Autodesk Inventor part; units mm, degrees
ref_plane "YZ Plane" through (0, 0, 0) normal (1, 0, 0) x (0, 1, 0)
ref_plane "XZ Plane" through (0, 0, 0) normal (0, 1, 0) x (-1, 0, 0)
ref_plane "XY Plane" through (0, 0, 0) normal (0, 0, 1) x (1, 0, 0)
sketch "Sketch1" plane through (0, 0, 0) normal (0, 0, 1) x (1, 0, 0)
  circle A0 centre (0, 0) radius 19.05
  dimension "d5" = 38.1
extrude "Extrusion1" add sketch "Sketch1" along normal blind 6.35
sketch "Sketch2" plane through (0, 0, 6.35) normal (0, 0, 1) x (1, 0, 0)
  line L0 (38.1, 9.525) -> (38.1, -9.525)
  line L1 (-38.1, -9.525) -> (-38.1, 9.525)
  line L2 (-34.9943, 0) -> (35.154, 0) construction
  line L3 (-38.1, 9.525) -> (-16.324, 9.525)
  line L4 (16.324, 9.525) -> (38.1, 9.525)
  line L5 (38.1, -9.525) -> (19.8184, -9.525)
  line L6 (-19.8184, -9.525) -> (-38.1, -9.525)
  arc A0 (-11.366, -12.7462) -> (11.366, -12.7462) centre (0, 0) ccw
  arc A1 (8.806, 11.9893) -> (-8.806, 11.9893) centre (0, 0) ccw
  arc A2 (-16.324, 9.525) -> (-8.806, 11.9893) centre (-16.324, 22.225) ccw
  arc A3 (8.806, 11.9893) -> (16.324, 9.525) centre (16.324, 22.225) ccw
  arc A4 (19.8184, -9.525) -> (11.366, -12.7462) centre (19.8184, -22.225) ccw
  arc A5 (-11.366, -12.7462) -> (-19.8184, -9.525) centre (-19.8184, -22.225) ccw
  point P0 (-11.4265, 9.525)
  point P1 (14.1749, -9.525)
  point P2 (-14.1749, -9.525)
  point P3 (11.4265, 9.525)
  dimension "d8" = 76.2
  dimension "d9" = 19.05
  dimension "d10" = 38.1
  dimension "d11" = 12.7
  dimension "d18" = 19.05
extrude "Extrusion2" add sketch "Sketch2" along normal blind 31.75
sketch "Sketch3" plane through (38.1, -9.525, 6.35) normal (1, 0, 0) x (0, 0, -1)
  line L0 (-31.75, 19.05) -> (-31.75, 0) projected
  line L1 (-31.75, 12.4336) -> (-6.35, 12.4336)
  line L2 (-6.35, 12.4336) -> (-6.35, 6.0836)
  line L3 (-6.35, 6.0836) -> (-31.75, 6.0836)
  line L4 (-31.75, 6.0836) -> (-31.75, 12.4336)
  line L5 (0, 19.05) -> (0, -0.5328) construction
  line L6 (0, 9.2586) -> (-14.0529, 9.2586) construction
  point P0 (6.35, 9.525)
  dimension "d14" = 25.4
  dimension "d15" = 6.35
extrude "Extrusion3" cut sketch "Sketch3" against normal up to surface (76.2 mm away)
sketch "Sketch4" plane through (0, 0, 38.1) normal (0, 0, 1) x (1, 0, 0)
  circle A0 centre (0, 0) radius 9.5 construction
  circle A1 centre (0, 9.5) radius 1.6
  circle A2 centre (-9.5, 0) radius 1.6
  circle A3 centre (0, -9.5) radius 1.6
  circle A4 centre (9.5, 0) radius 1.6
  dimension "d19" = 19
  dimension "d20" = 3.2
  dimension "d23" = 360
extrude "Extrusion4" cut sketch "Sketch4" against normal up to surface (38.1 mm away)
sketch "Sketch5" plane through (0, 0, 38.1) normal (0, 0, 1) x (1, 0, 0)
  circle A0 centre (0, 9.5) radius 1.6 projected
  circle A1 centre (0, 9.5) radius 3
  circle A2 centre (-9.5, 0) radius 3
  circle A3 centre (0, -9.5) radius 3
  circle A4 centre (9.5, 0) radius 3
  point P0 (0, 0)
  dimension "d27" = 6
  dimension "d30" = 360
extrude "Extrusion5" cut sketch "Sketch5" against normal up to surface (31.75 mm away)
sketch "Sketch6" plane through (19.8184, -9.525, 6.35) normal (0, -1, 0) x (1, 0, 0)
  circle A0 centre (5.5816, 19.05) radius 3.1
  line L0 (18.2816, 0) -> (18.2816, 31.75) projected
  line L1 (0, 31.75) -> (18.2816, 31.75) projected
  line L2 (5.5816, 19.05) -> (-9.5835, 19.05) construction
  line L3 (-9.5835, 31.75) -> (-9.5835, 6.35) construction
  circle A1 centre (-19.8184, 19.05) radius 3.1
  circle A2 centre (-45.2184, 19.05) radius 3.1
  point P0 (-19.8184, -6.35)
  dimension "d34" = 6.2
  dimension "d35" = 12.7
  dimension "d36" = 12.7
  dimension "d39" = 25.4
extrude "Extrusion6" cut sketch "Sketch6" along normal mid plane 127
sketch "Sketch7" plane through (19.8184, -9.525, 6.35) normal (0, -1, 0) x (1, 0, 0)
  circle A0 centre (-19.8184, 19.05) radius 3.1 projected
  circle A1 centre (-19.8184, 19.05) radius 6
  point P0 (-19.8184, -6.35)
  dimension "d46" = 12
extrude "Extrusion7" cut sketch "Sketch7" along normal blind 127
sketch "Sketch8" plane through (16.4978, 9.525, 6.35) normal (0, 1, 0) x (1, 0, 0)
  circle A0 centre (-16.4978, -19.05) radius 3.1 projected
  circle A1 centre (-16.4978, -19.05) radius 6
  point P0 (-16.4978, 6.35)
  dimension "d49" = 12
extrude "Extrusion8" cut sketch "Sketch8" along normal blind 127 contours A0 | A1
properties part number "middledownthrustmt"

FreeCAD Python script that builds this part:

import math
import FreeCAD as App
import Part
import Sketcher

V = App.Vector
Q = App.Units.Quantity

doc = App.newDocument("Part")
params = doc.addObject("Spreadsheet::Sheet", "Params")
for row, (alias, value) in enumerate([
    ("sketch1_diameter", "1.5 in"),
    ("pad1_length", "0.25 in"),
    ("sketch2_radius", "0.5 in"),
    ("sketch2_height", "0.75 in"),
    ("pad2_length", "1.25 in"),
    ("sketch3_height", "1 in"),
    ("sketch3_width", "0.25 in"),
    ("pocket1_length", "3 in"),
    ("pocket2_length", "1.5 in"),
    ("pocket3_length", "1.25 in"),
    ("pocket4_length", "5 in"),
    ("pocket5_length", "5 in"),
    ("pocket6_length", "5 in"),
], start=1):
    params.set(f"A{row}", alias)
    params.set(f"B{row}", "=" + value)
    params.setAlias(f"B{row}", alias)

body = doc.addObject("PartDesign::Body", "Body")

# Sketch on XY plane
sketch1 = body.newObject("Sketcher::SketchObject", "Sketch")
sketch1.AttachmentSupport = (doc.getObject("XY_Plane"), [""])
sketch1.MapMode = "FlatFace"
sketch1.addGeometry(Part.Circle(V(0, 0, 0), V(0, 0, 1), 19), False)
sketch1.addConstraint(Sketcher.Constraint("Coincident", 0, 3, -1, 1))
sketch1.addConstraint(Sketcher.Constraint("Diameter", 0, Q("1.5 in")))
sketch1.setExpression("Constraints[1]", "Params.sketch1_diameter")
pad1 = body.newObject("PartDesign::Pad", "Pad")
pad1.Profile = sketch1
pad1.setExpression("Length", "Params.pad1_length")

# Sketch on XY plane
sketch2 = body.newObject("Sketcher::SketchObject", "Sketch001")
sketch2.AttachmentSupport = (doc.getObject("XY_Plane"), [""])
sketch2.MapMode = "FlatFace"
sketch2.AttachmentOffset = App.Placement(V(0, 0, 0.25 * 25.4), App.Rotation())
sketch2.addGeometry(Part.LineSegment(V(38, -10, 0), V(38, 10, 0)), False)
sketch2.addGeometry(Part.LineSegment(V(38, 10, 0), V(16, 10, 0)), False)
sketch2.addGeometry(Part.ArcOfCircle(Part.Circle(V(16, 22, 0), V(0, 0, 1), 13), math.radians(-126), math.radians(-90)), False)
sketch2.addGeometry(Part.ArcOfCircle(Part.Circle(V(0, 0, 0), V(0, 0, 1), 15), math.radians(54), math.radians(126)), False)
sketch2.addGeometry(Part.ArcOfCircle(Part.Circle(V(-16, 22, 0), V(0, 0, 1), 13), math.radians(-90), math.radians(-54)), False)
sketch2.addGeometry(Part.LineSegment(V(-16, 10, 0), V(-38, 10, 0)), False)
sketch2.addGeometry(Part.LineSegment(V(-38, 10, 0), V(-38, -10, 0)), False)
sketch2.addGeometry(Part.LineSegment(V(-38, -10, 0), V(-20, -10, 0)), False)
sketch2.addGeometry(Part.ArcOfCircle(Part.Circle(V(-20, -22, 0), V(0, 0, 1), 13), math.radians(48), math.radians(90)), False)
sketch2.addGeometry(Part.ArcOfCircle(Part.Circle(V(0, 0, 0), V(0, 0, 1), 17), math.radians(-132), math.radians(-48)), False)
sketch2.addGeometry(Part.ArcOfCircle(Part.Circle(V(20, -22, 0), V(0, 0, 1), 13), math.radians(90), math.radians(132)), False)
sketch2.addGeometry(Part.LineSegment(V(20, -10, 0), V(38, -10, 0)), False)
sketch2.addConstraint(Sketcher.Constraint("Coincident", 0, 2, 1, 1))
sketch2.addConstraint(Sketcher.Constraint("Tangent", 1, 2, 2, 2))
sketch2.addConstraint(Sketcher.Constraint("Tangent", 2, 1, 3, 1))
sketch2.addConstraint(Sketcher.Constraint("Tangent", 3, 2, 4, 2))
sketch2.addConstraint(Sketcher.Constraint("Tangent", 4, 1, 5, 1))
sketch2.addConstraint(Sketcher.Constraint("Coincident", 5, 2, 6, 1))
sketch2.addConstraint(Sketcher.Constraint("Coincident", 6, 2, 7, 1))
sketch2.addConstraint(Sketcher.Constraint("Tangent", 7, 2, 8, 2))
sketch2.addConstraint(Sketcher.Constraint("Tangent", 8, 1, 9, 1))
sketch2.addConstraint(Sketcher.Constraint("Tangent", 9, 2, 10, 2))
sketch2.addConstraint(Sketcher.Constraint("Tangent", 10, 1, 11, 1))
sketch2.addConstraint(Sketcher.Constraint("Coincident", 11, 2, 0, 1))
sketch2.addConstraint(Sketcher.Constraint("Vertical", 0))
sketch2.addConstraint(Sketcher.Constraint("Horizontal", 1))
sketch2.addConstraint(Sketcher.Constraint("Horizontal", 5))
sketch2.addConstraint(Sketcher.Constraint("Vertical", 6))
sketch2.addConstraint(Sketcher.Constraint("Horizontal", 7))
sketch2.addConstraint(Sketcher.Constraint("Horizontal", 11))
sketch2.addConstraint(Sketcher.Constraint("Coincident", 3, 3, -1, 1))
sketch2.addConstraint(Sketcher.Constraint("Coincident", 9, 3, -1, 1))
sketch2.addConstraint(Sketcher.Constraint("Equal", 2, 4))
sketch2.addConstraint(Sketcher.Constraint("Equal", 4, 8))
sketch2.addConstraint(Sketcher.Constraint("Equal", 8, 10))
sketch2.addConstraint(Sketcher.Constraint("Symmetric", 0, 2, 6, 2, -1, 1))
sketch2.addConstraint(Sketcher.Constraint("Horizontal", 2, 3, 4, 3))
sketch2.addConstraint(Sketcher.Constraint("Horizontal", 8, 3, 10, 3))
sketch2.addConstraint(Sketcher.Constraint("Radius", 2, Q("0.5 in")))
sketch2.addConstraint(Sketcher.Constraint("DistanceY", 0, 1, 0, 2, Q("0.75 in")))
sketch2.addConstraint(Sketcher.Constraint("DistanceX", -1, 1, 0, 2, Q("1.5 in")))
sketch2.addConstraint(Sketcher.Constraint("Radius", 3, 14.8758))
sketch2.addConstraint(Sketcher.Constraint("Radius", 9, 17.0778))
sketch2.setExpression("Constraints[26]", "Params.sketch2_radius")
sketch2.setExpression("Constraints[27]", "Params.sketch2_height")
pad2 = body.newObject("PartDesign::Pad", "Pad001")
pad2.Profile = sketch2
pad2.setExpression("Length", "Params.pad2_length")

# Sketch on YZ plane
sketch3 = body.newObject("Sketcher::SketchObject", "Sketch002")
sketch3.AttachmentSupport = (doc.getObject("YZ_Plane"), [""])
sketch3.MapMode = "FlatFace"
sketch3.AttachmentOffset = App.Placement(V(0, 0, 1.5 * 25.4), App.Rotation())
sketch3.addGeometry(Part.LineSegment(V(3, 13, 0), V(3, 38, 0)), False)
sketch3.addGeometry(Part.LineSegment(V(3, 38, 0), V(-3, 38, 0)), False)
sketch3.addGeometry(Part.LineSegment(V(-3, 38, 0), V(-3, 13, 0)), False)
sketch3.addGeometry(Part.LineSegment(V(-3, 13, 0), V(3, 13, 0)), False)
sketch3.addConstraint(Sketcher.Constraint("Coincident", 0, 2, 1, 1))
sketch3.addConstraint(Sketcher.Constraint("Coincident", 1, 2, 2, 1))
sketch3.addConstraint(Sketcher.Constraint("Coincident", 2, 2, 3, 1))
sketch3.addConstraint(Sketcher.Constraint("Coincident", 3, 2, 0, 1))
sketch3.addConstraint(Sketcher.Constraint("Vertical", 0))
sketch3.addConstraint(Sketcher.Constraint("Horizontal", 1))
sketch3.addConstraint(Sketcher.Constraint("Vertical", 2))
sketch3.addConstraint(Sketcher.Constraint("Horizontal", 3))
sketch3.addConstraint(Sketcher.Constraint("DistanceY", 0, 1, 0, 2, Q("1 in")))
sketch3.addConstraint(Sketcher.Constraint("DistanceX", 1, 2, 1, 1, Q("0.25 in")))
sketch3.addConstraint(Sketcher.Constraint("DistanceY", -1, 1, 0, 2, Q("1.5 in")))
sketch3.addConstraint(Sketcher.Constraint("DistanceX", -1, 1, 0, 2, Q("0.1145 in")))
sketch3.setExpression("Constraints[8]", "Params.sketch3_height")
sketch3.setExpression("Constraints[9]", "Params.sketch3_width")
pocket1 = body.newObject("PartDesign::Pocket", "Pocket")
pocket1.Profile = sketch3
pocket1.setExpression("Length", "Params.pocket1_length")

# Sketch on XY plane
sketch4 = body.newObject("Sketcher::SketchObject", "Sketch003")
sketch4.AttachmentSupport = (doc.getObject("XY_Plane"), [""])
sketch4.MapMode = "FlatFace"
sketch4.AttachmentOffset = App.Placement(V(0, 0, 1.5 * 25.4), App.Rotation())
sketch4.addGeometry(Part.Circle(V(0, 9.5, 0), V(0, 0, 1), 1.6), False)
sketch4.addGeometry(Part.Circle(V(-9.5, 0, 0), V(0, 0, 1), 1.6), False)
sketch4.addGeometry(Part.Circle(V(0, -9.5, 0), V(0, 0, 1), 1.6), False)
sketch4.addGeometry(Part.Circle(V(9.5, 0, 0), V(0, 0, 1), 1.6), False)
sketch4.addConstraint(Sketcher.Constraint("Equal", 0, 1))
sketch4.addConstraint(Sketcher.Constraint("Equal", 1, 2))
sketch4.addConstraint(Sketcher.Constraint("Equal", 2, 3))
sketch4.addConstraint(Sketcher.Constraint("Symmetric", 0, 3, 2, 3, -1, 1))
sketch4.addConstraint(Sketcher.Constraint("Symmetric", 1, 3, 3, 3, -1, 1))
sketch4.addConstraint(Sketcher.Constraint("PointOnObject", 0, 3, -2))
sketch4.addConstraint(Sketcher.Constraint("PointOnObject", 1, 3, -1))
sketch4.addConstraint(Sketcher.Constraint("Diameter", 0, 3.2))
sketch4.addConstraint(Sketcher.Constraint("DistanceY", 2, 3, 0, 3, 19.0))
sketch4.addConstraint(Sketcher.Constraint("DistanceX", 1, 3, 3, 3, 19.0))
pocket2 = body.newObject("PartDesign::Pocket", "Pocket001")
pocket2.Profile = sketch4
pocket2.setExpression("Length", "Params.pocket2_length")

# Sketch on XY plane
sketch5 = body.newObject("Sketcher::SketchObject", "Sketch004")
sketch5.AttachmentSupport = (doc.getObject("XY_Plane"), [""])
sketch5.MapMode = "FlatFace"
sketch5.AttachmentOffset = App.Placement(V(0, 0, 1.5 * 25.4), App.Rotation())
sketch5.addGeometry(Part.Circle(V(0, 9.5, 0), V(0, 0, 1), 3), False)
sketch5.addGeometry(Part.Circle(V(0, 9.5, 0), V(0, 0, 1), 1.6), False)
sketch5.addGeometry(Part.Circle(V(-9.5, 0, 0), V(0, 0, 1), 3), False)
sketch5.addGeometry(Part.Circle(V(0, -9.5, 0), V(0, 0, 1), 3), False)
sketch5.addGeometry(Part.Circle(V(9.5, 0, 0), V(0, 0, 1), 3), False)
sketch5.addConstraint(Sketcher.Constraint("Coincident", 1, 3, 0, 3))
sketch5.addConstraint(Sketcher.Constraint("Equal", 0, 2))
sketch5.addConstraint(Sketcher.Constraint("Equal", 2, 3))
sketch5.addConstraint(Sketcher.Constraint("Equal", 3, 4))
sketch5.addConstraint(Sketcher.Constraint("Symmetric", 0, 3, 3, 3, -1, 1))
sketch5.addConstraint(Sketcher.Constraint("Symmetric", 2, 3, 4, 3, -1, 1))
sketch5.addConstraint(Sketcher.Constraint("PointOnObject", 0, 3, -2))
sketch5.addConstraint(Sketcher.Constraint("PointOnObject", 2, 3, -1))
sketch5.addConstraint(Sketcher.Constraint("Diameter", 0, 6.0))
sketch5.addConstraint(Sketcher.Constraint("Diameter", 1, 3.2))
sketch5.addConstraint(Sketcher.Constraint("DistanceY", -1, 1, 0, 3, 9.5))
sketch5.addConstraint(Sketcher.Constraint("DistanceX", 2, 3, -1, 1, 9.5))
pocket3 = body.newObject("PartDesign::Pocket", "Pocket002")
pocket3.Profile = sketch5
pocket3.setExpression("Length", "Params.pocket3_length")

# Sketch on XZ plane
sketch6 = body.newObject("Sketcher::SketchObject", "Sketch005")
sketch6.AttachmentSupport = (doc.getObject("XZ_Plane"), [""])
sketch6.MapMode = "FlatFace"
sketch6.AttachmentOffset = App.Placement(V(0, 0, 0.375 * 25.4), App.Rotation())
sketch6.addGeometry(Part.Circle(V(25.4, 25.4, 0), V(0, 0, 1), 3.1), False)
sketch6.addGeometry(Part.Circle(V(0, 25.4, 0), V(0, 0, 1), 3.1), False)
sketch6.addGeometry(Part.Circle(V(-25.4, 25.4, 0), V(0, 0, 1), 3.1), False)
sketch6.addConstraint(Sketcher.Constraint("Equal", 0, 1))
sketch6.addConstraint(Sketcher.Constraint("Equal", 1, 2))
sketch6.addConstraint(Sketcher.Constraint("Symmetric", 0, 3, 2, 3, -2))
sketch6.addConstraint(Sketcher.Constraint("PointOnObject", 1, 3, -2))
sketch6.addConstraint(Sketcher.Constraint("Horizontal", 0, 3, 1, 3))
sketch6.addConstraint(Sketcher.Constraint("DistanceX", -1, 1, 0, 3, Q("1 in")))
sketch6.addConstraint(Sketcher.Constraint("DistanceY", -1, 1, 0, 3, Q("1 in")))
sketch6.addConstraint(Sketcher.Constraint("Diameter", 0, Q("0.2441 in")))
pocket4 = body.newObject("PartDesign::Pocket", "Pocket003")
pocket4.Profile = sketch6
pocket4.setExpression("Length", "Params.pocket4_length")
pocket4.Midplane = True

# Sketch on XZ plane
sketch7 = body.newObject("Sketcher::SketchObject", "Sketch006")
sketch7.AttachmentSupport = (doc.getObject("XZ_Plane"), [""])
sketch7.MapMode = "FlatFace"
sketch7.AttachmentOffset = App.Placement(V(0, 0, 0.375 * 25.4), App.Rotation())
sketch7.addGeometry(Part.Circle(V(0, 25.4, 0), V(0, 0, 1), 6), False)
sketch7.addGeometry(Part.Circle(V(0, 25.4, 0), V(0, 0, 1), 3.1), False)
sketch7.addConstraint(Sketcher.Constraint("Coincident", 1, 3, 0, 3))
sketch7.addConstraint(Sketcher.Constraint("PointOnObject", 0, 3, -2))
sketch7.addConstraint(Sketcher.Constraint("Diameter", 0, 12.0))
sketch7.addConstraint(Sketcher.Constraint("DistanceY", -1, 1, 0, 3, Q("1 in")))
sketch7.addConstraint(Sketcher.Constraint("Diameter", 1, Q("0.2441 in")))
pocket5 = body.newObject("PartDesign::Pocket", "Pocket004")
pocket5.Profile = sketch7
pocket5.setExpression("Length", "Params.pocket5_length")
pocket5.Reversed = True

# Sketch on XZ plane
sketch8 = body.newObject("Sketcher::SketchObject", "Sketch007")
sketch8.AttachmentSupport = (doc.getObject("XZ_Plane"), [""])
sketch8.MapMode = "FlatFace"
sketch8.AttachmentOffset = App.Placement(V(0, 0, -0.375 * 25.4), App.Rotation())
sketch8.addGeometry(Part.Circle(V(0, 25, 0), V(0, 0, 1), 6), False)
sketch8.addConstraint(Sketcher.Constraint("PointOnObject", 0, 3, -2))
sketch8.addConstraint(Sketcher.Constraint("Diameter", 0, 12.0))
sketch8.addConstraint(Sketcher.Constraint("DistanceY", -1, 1, 0, 3, Q("1 in")))
pocket6 = body.newObject("PartDesign::Pocket", "Pocket005")
pocket6.Profile = sketch8
pocket6.setExpression("Length", "Params.pocket6_length")

doc.recompute()
